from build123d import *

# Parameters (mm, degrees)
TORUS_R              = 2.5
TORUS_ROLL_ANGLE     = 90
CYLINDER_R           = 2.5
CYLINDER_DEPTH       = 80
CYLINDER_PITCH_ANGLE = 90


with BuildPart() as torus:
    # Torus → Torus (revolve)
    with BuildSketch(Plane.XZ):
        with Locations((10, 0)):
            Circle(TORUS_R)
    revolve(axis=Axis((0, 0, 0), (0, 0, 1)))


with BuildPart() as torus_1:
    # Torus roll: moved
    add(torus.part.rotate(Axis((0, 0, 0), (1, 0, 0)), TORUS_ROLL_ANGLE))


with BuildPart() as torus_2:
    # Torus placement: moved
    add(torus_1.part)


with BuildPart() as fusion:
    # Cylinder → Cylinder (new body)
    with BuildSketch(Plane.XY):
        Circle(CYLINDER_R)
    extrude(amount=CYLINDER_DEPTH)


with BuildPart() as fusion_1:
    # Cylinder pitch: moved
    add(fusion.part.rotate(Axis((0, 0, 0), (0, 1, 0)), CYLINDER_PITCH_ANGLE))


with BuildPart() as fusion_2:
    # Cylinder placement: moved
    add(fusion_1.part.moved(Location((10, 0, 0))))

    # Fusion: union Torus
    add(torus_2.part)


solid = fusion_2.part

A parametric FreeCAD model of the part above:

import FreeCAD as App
import Part
import Sketcher
from FreeCAD import Vector

doc = App.newDocument("Part")
body = doc.addObject("PartDesign::Body", "Body")

# Sketch on XZ plane
sketch1 = doc.addObject("Sketcher::SketchObject", "Sketch")
body.addObject(sketch1)
sketch1.AttachmentSupport = (doc.XZ_Plane, [""])
sketch1.MapMode = "FlatFace"
sketch1.addGeometry(Part.Circle(Vector(10, 0, 0), Vector(0, 0, 1), 2.5), False)
sketch1.addConstraint([
    Sketcher.Constraint("PointOnObject", 0, 3, -1),
    Sketcher.Constraint("Diameter", 0, 5.0),
    Sketcher.Constraint("DistanceX", -1, 1, 0, 3, 10.0),
])
revolution = doc.addObject("PartDesign::Revolution", "Revolution")
body.addObject(revolution)
revolution.Profile = sketch1
revolution.ReferenceAxis = (sketch1, ["V_Axis"])
revolution.Angle = 360
body2 = doc.addObject("PartDesign::Body", "Body001")
doc.recompute()

body.Placement = App.Placement(Vector(0, 0, 0), App.Rotation(Vector(1, 0, 0), 90))
boolean = doc.addObject("PartDesign::Boolean", "Boolean")
body2.addObject(boolean)
boolean.Type = "Fuse"
boolean.addObjects([body])
body3 = doc.addObject("PartDesign::Body", "Body002")

# Sketch on XY plane
sketch2 = doc.addObject("Sketcher::SketchObject", "Sketch001")
body3.addObject(sketch2)
sketch2.AttachmentSupport = (doc.getObject("XY_Plane002"), [""])
sketch2.MapMode = "FlatFace"
sketch2.addGeometry(Part.Circle(Vector(0, 0, 0), Vector(0, 0, 1), 2.5), False)
sketch2.addConstraint([
    Sketcher.Constraint("Coincident", 0, 3, -1, 1),
    Sketcher.Constraint("Diameter", 0, 5.0),
])
pad1 = doc.addObject("PartDesign::Pad", "Pad")
body3.addObject(pad1)
pad1.Profile = sketch2
pad1.Length = 80
body4 = doc.addObject("PartDesign::Body", "Body003")
doc.recompute()

body3.Placement = App.Placement(Vector(0, 0, 0), App.Rotation(Vector(0, 1, 0), 90))
boolean2 = doc.addObject("PartDesign::Boolean", "Boolean001")
body4.addObject(boolean2)
boolean2.Type = "Fuse"
boolean2.addObjects([body3])
body5 = doc.addObject("PartDesign::Body", "Body004")
doc.recompute()

body4.Placement = App.Placement(Vector(10, 0, 0), App.Rotation(Vector(0, 0, 1), 0))
boolean3 = doc.addObject("PartDesign::Boolean", "Boolean002")
body5.addObject(boolean3)
boolean3.Type = "Fuse"
boolean3.addObjects([body4])
doc.recompute()

boolean4 = doc.addObject("PartDesign::Boolean", "Boolean003")
body5.addObject(boolean4)
boolean4.Type = "Fuse"
boolean4.addObjects([body2])

doc.recompute()
